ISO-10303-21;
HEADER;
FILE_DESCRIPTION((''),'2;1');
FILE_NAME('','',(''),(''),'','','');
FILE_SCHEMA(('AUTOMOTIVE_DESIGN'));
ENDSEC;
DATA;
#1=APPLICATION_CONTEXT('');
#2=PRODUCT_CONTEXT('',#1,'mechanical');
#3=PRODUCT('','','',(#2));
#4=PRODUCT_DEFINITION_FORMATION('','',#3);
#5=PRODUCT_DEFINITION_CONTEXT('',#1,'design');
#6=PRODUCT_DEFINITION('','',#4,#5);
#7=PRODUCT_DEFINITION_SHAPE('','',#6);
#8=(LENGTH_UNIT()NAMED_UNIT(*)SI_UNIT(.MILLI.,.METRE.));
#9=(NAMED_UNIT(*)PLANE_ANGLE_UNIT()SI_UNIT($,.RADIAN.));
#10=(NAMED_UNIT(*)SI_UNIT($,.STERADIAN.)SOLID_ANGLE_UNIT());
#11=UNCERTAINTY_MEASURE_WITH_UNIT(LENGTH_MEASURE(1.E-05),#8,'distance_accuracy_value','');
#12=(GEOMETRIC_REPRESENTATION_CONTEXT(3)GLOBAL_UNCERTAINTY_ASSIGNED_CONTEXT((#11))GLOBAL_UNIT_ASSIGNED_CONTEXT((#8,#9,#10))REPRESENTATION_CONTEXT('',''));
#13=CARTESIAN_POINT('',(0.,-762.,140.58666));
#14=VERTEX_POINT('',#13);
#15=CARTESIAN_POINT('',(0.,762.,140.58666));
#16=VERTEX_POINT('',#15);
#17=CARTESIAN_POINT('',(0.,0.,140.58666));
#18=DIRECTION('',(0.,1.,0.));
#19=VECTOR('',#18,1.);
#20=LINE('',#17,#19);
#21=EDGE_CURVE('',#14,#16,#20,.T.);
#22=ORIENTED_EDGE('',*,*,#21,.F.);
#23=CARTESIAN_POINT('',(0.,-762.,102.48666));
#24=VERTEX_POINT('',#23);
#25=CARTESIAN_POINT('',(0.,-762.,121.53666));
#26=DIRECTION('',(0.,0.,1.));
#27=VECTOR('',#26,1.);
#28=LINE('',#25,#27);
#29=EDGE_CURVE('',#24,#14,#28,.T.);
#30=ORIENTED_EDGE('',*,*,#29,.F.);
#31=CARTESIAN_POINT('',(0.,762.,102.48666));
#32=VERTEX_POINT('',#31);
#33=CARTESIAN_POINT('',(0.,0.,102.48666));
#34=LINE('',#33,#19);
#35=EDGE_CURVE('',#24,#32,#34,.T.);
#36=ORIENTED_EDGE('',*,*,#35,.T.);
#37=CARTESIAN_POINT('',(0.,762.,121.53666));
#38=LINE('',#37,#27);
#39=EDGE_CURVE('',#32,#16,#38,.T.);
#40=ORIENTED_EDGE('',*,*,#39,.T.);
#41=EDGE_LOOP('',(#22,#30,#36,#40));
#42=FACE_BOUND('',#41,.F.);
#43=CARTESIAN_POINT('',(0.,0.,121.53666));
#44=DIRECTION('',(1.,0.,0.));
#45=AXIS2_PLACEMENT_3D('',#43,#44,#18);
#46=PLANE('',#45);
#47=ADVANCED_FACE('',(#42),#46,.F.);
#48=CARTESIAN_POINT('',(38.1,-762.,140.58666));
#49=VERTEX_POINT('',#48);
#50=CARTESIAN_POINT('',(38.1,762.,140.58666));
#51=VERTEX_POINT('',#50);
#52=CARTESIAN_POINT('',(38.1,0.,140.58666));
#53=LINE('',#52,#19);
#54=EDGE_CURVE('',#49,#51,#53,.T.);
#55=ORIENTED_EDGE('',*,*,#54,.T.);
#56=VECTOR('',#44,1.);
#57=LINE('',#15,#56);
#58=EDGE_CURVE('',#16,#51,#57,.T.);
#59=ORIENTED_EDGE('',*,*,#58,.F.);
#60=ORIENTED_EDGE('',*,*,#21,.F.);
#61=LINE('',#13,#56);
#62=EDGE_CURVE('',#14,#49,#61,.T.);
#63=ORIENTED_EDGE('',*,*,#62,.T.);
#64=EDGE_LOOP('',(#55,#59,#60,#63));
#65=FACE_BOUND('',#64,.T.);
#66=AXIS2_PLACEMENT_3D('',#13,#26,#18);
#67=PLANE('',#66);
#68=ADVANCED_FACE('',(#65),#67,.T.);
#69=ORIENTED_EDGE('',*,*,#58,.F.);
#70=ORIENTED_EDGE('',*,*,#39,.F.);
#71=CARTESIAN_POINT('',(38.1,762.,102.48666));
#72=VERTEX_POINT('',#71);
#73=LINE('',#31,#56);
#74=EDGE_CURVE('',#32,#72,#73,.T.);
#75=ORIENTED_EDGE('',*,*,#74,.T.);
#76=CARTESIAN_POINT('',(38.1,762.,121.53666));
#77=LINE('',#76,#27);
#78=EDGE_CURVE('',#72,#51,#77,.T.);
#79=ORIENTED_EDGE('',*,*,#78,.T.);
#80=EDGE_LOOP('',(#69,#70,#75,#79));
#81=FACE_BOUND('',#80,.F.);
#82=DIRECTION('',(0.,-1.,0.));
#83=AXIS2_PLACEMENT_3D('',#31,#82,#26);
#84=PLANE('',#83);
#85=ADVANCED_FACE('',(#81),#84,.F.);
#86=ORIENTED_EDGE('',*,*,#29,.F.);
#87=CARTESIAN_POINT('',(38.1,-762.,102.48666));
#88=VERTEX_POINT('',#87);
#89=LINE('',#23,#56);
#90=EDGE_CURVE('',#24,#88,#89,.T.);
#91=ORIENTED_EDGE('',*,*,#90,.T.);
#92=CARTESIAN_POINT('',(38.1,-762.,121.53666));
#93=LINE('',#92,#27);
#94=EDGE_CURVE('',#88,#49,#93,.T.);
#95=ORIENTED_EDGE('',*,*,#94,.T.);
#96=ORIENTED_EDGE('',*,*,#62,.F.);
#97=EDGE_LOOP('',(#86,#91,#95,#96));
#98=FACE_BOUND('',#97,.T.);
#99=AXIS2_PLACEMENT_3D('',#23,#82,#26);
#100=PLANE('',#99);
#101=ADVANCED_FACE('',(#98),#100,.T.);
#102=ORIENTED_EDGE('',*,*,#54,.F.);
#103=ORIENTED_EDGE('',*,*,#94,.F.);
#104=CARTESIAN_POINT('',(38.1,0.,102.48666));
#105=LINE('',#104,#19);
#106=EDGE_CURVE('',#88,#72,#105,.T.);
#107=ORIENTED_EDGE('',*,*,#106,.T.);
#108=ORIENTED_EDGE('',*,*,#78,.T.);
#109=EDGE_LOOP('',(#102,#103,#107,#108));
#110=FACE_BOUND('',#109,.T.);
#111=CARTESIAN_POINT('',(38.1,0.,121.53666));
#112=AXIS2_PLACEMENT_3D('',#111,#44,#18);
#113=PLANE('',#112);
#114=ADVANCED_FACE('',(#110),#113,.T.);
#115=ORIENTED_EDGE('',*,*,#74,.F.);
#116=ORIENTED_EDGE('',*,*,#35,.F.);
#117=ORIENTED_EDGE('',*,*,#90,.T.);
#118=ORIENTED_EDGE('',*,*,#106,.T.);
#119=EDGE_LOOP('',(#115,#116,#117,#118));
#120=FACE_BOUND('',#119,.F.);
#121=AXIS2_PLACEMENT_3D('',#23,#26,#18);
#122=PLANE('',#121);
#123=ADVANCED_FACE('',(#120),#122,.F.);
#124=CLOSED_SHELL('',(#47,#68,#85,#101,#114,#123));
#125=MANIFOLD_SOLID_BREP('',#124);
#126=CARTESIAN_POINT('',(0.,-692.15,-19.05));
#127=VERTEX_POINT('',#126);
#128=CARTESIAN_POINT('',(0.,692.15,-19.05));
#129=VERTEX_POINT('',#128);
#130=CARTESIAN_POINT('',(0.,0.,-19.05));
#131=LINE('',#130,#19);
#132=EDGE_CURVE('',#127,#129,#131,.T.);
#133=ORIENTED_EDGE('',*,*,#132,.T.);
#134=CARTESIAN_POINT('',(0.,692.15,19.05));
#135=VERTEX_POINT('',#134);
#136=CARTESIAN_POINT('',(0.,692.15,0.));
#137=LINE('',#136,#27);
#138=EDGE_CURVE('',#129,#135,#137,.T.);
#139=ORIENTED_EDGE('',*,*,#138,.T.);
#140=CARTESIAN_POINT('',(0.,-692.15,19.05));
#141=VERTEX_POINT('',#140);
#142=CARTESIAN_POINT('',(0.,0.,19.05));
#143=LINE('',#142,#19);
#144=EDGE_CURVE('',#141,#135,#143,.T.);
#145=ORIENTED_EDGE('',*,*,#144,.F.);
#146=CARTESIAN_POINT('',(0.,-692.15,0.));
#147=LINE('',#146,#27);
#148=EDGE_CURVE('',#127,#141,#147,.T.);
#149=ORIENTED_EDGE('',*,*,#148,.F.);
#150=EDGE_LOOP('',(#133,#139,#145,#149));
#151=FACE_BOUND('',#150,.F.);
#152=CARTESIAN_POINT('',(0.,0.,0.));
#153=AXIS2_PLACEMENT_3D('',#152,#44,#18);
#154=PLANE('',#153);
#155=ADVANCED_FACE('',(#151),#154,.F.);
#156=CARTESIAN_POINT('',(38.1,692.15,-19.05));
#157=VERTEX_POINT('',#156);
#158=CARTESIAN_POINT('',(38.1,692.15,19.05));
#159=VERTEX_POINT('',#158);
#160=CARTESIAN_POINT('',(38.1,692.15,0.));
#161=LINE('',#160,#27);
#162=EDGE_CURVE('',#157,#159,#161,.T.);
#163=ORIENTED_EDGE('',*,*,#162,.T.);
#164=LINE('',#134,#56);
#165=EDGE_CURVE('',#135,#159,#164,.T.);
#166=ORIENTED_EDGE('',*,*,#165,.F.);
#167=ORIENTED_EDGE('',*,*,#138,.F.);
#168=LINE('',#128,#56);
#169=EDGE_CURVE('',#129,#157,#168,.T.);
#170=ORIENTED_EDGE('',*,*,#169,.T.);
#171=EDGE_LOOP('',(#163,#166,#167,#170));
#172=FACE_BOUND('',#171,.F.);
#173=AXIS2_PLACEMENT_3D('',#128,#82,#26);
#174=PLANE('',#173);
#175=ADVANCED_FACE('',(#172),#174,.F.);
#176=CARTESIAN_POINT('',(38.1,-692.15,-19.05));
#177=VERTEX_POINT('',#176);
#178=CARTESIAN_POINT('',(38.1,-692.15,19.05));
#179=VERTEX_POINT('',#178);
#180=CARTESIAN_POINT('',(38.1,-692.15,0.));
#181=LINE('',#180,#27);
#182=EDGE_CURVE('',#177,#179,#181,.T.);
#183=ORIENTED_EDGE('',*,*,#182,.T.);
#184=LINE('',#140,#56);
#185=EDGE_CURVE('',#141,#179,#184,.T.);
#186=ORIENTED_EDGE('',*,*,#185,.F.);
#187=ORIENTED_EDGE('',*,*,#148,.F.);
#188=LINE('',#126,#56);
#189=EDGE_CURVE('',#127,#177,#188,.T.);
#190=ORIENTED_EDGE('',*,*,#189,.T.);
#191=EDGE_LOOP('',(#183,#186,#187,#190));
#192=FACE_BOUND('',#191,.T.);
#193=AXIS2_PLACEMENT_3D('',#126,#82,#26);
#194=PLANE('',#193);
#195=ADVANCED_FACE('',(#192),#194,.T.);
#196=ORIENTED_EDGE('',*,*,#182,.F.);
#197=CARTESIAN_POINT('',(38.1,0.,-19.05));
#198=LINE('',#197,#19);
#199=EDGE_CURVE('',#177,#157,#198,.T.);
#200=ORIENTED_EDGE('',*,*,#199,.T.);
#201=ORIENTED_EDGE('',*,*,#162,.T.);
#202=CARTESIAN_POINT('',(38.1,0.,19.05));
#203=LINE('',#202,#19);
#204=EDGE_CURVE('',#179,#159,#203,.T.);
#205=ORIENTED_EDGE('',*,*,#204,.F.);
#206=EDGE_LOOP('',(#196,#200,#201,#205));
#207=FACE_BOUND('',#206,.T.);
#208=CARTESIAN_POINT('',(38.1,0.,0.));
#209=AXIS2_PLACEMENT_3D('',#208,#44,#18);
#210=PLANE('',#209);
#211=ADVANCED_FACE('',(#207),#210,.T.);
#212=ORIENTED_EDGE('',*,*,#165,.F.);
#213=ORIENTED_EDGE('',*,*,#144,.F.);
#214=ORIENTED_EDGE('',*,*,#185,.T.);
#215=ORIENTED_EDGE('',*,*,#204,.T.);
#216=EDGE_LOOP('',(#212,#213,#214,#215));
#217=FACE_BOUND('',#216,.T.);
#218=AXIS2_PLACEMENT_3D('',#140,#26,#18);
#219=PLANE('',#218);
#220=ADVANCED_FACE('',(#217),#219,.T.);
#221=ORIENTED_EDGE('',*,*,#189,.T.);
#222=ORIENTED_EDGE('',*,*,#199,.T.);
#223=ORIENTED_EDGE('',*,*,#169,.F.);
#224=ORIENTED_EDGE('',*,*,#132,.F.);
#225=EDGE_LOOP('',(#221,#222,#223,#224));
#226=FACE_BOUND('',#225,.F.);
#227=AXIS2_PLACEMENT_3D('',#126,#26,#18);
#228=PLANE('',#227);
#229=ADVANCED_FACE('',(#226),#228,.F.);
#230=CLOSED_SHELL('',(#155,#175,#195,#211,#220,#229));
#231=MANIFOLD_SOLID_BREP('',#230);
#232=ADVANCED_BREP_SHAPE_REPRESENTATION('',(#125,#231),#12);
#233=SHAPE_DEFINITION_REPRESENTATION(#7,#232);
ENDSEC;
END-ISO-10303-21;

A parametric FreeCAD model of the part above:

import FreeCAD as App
import Part
import Sketcher
from FreeCAD import Vector
Q = App.Units.Quantity

doc = App.newDocument("Part")
body = doc.addObject("PartDesign::Body", "Body")

sketch1 = body.newObject("Sketcher::SketchObject", "Sketch")
sketch1.AttachmentSupport = (doc.getObject("YZ_Plane"), [""])
sketch1.MapMode = "FlatFace"
sketch1.addGeometry(Part.LineSegment(Vector(-692, 19, 0), Vector(-692, -19, 0)), False)
sketch1.addGeometry(Part.LineSegment(Vector(-692, -19, 0), Vector(692, -19, 0)), False)
sketch1.addGeometry(Part.LineSegment(Vector(692, -19, 0), Vector(692, 19, 0)), False)
sketch1.addGeometry(Part.LineSegment(Vector(692, 19, 0), Vector(-692, 19, 0)), False)
sketch1.addConstraint(Sketcher.Constraint("Coincident", 0, 2, 1, 1))
sketch1.addConstraint(Sketcher.Constraint("Coincident", 1, 2, 2, 1))
sketch1.addConstraint(Sketcher.Constraint("Coincident", 2, 2, 3, 1))
sketch1.addConstraint(Sketcher.Constraint("Coincident", 3, 2, 0, 1))
sketch1.addConstraint(Sketcher.Constraint("Vertical", 0))
sketch1.addConstraint(Sketcher.Constraint("Horizontal", 1))
sketch1.addConstraint(Sketcher.Constraint("Vertical", 2))
sketch1.addConstraint(Sketcher.Constraint("Horizontal", 3))
sketch1.addConstraint(Sketcher.Constraint("Symmetric", 0, 2, 2, 2, -1, 1))
sketch1.addConstraint(Sketcher.Constraint("DistanceX", 1, 1, 1, 2, Q("54.5 in")))
sketch1.addConstraint(Sketcher.Constraint("DistanceY", 0, 2, 0, 1, Q("1.5 in")))
pad1 = body.newObject("PartDesign::Pad", "Pad")
pad1.Profile = sketch1
pad1.Length = Q("1.5 in")
body2 = doc.addObject("PartDesign::Body", "Body001")

sketch2 = body2.newObject("Sketcher::SketchObject", "Sketch001")
sketch2.AttachmentSupport = (doc.getObject("YZ_Plane001"), [""])
sketch2.MapMode = "FlatFace"
sketch2.addGeometry(Part.LineSegment(Vector(-762, 141, 0), Vector(-762, 102, 0)), False)
sketch2.addGeometry(Part.LineSegment(Vector(-762, 102, 0), Vector(762, 102, 0)), False)
sketch2.addGeometry(Part.LineSegment(Vector(762, 102, 0), Vector(762, 141, 0)), False)
sketch2.addGeometry(Part.LineSegment(Vector(762, 141, 0), Vector(-762, 141, 0)), False)
sketch2.addConstraint(Sketcher.Constraint("Coincident", 0, 2, 1, 1))
sketch2.addConstraint(Sketcher.Constraint("Coincident", 1, 2, 2, 1))
sketch2.addConstraint(Sketcher.Constraint("Coincident", 2, 2, 3, 1))
sketch2.addConstraint(Sketcher.Constraint("Coincident", 3, 2, 0, 1))
sketch2.addConstraint(Sketcher.Constraint("Vertical", 0))
sketch2.addConstraint(Sketcher.Constraint("Horizontal", 1))
sketch2.addConstraint(Sketcher.Constraint("Vertical", 2))
sketch2.addConstraint(Sketcher.Constraint("Horizontal", 3))
sketch2.addConstraint(Sketcher.Constraint("DistanceX", 1, 1, 1, 2, Q("60 in")))
sketch2.addConstraint(Sketcher.Constraint("DistanceY", 0, 2, 0, 1, Q("1.5 in")))
sketch2.addConstraint(Sketcher.Constraint("DistanceX", 0, 2, -1, 1, Q("30 in")))
sketch2.addConstraint(Sketcher.Constraint("DistanceY", -1, 1, 0, 2, 102.48666))
pad2 = body2.newObject("PartDesign::Pad", "Pad001")
pad2.Profile = sketch2
pad2.Length = Q("1.5 in")

doc.recompute()
